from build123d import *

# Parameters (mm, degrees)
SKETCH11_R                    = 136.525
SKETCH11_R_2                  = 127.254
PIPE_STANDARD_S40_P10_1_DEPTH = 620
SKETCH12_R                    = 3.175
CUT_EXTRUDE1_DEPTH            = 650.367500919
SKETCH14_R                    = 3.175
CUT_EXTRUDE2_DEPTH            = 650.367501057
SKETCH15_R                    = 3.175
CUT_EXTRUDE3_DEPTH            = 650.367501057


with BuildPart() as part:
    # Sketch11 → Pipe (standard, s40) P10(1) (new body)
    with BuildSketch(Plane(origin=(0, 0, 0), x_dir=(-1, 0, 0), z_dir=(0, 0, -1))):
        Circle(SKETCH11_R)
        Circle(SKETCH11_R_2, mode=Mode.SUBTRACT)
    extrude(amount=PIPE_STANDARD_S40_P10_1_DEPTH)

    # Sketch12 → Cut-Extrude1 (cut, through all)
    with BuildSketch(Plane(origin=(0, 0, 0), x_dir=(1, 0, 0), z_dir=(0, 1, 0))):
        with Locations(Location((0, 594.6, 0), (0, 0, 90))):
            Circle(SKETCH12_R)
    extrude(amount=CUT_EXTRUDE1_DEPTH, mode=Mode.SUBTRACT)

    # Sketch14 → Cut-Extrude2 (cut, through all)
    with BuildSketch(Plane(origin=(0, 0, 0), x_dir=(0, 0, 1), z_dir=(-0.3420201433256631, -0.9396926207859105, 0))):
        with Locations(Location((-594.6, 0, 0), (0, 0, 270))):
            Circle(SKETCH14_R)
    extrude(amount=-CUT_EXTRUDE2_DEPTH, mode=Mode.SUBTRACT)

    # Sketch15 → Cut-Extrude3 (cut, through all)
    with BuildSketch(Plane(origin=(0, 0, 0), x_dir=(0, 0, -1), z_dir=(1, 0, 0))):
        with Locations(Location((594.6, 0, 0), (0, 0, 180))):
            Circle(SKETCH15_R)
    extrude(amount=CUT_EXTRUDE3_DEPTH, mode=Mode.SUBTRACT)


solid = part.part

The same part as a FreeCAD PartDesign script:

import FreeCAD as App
import Part
import Sketcher
Q = App.Units.Quantity

doc = App.newDocument("Part")
body = doc.addObject("PartDesign::Body", "Body")

sketch1 = doc.addObject("Sketcher::SketchObject", "Sketch")
body.addObject(sketch1)
sketch1.AttachmentSupport = (doc.XY_Plane, [""])
sketch1.MapMode = "FlatFace"
sketch1.addGeometry(Part.Circle(App.Vector(0, 0, 0), App.Vector(0, 0, 1), 137), False)
sketch1.addGeometry(Part.Circle(App.Vector(0, 0, 0), App.Vector(0, 0, 1), 127), False)
sketch1.addConstraint(Sketcher.Constraint("Coincident", 0, 3, -1, 1))
sketch1.addConstraint(Sketcher.Constraint("Coincident", 1, 3, -1, 1))
sketch1.addConstraint(Sketcher.Constraint("Diameter", 0, Q("10.75 in")))
sketch1.addConstraint(Sketcher.Constraint("Diameter", 1, Q("10.02 in")))
pad1 = doc.addObject("PartDesign::Pad", "Pad")
body.addObject(pad1)
pad1.Profile = sketch1
pad1.Length = 620
pad1.Reversed = True

sketch2 = doc.addObject("Sketcher::SketchObject", "Sketch001")
body.addObject(sketch2)
sketch2.AttachmentSupport = (doc.XZ_Plane, [""])
sketch2.MapMode = "FlatFace"
sketch2.addGeometry(Part.Circle(App.Vector(0, -594.6, 0), App.Vector(0, 0, 1), 3.2), False)
sketch2.addConstraint(Sketcher.Constraint("PointOnObject", 0, 3, -2))
sketch2.addConstraint(Sketcher.Constraint("Diameter", 0, Q("0.25 in")))
sketch2.addConstraint(Sketcher.Constraint("DistanceY", 0, 3, -1, 1, Q("594.6 mm")))
pocket1 = doc.addObject("PartDesign::Pocket", "Pocket")
body.addObject(pocket1)
pocket1.Profile = sketch2
pocket1.Type = "ThroughAll"

sketch3 = doc.addObject("Sketcher::SketchObject", "Sketch002")
body.addObject(sketch3)
sketch3.Placement = App.Placement(App.Vector(0, 0, 0), App.Rotation(App.Vector(0, 0, 1), App.Vector(-0.939692621, 0.342020143, 0), App.Vector(-0.342020143, -0.939692621, 0), "ZXY"))
sketch3.addGeometry(Part.Circle(App.Vector(-594.6, 0, 0), App.Vector(0, 0, 1), 3.2), False)
sketch3.addConstraint(Sketcher.Constraint("PointOnObject", 0, 3, -1))
sketch3.addConstraint(Sketcher.Constraint("Diameter", 0, Q("0.25 in")))
sketch3.addConstraint(Sketcher.Constraint("DistanceX", 0, 3, -1, 1, Q("594.6 mm")))
pocket2 = doc.addObject("PartDesign::Pocket", "Pocket001")
body.addObject(pocket2)
pocket2.Profile = sketch3
pocket2.Type = "ThroughAll"

sketch4 = doc.addObject("Sketcher::SketchObject", "Sketch003")
body.addObject(sketch4)
sketch4.AttachmentSupport = (doc.YZ_Plane, [""])
sketch4.MapMode = "FlatFace"
sketch4.addGeometry(Part.Circle(App.Vector(0, -594.6, 0), App.Vector(0, 0, 1), 3.2), False)
sketch4.addConstraint(Sketcher.Constraint("PointOnObject", 0, 3, -2))
sketch4.addConstraint(Sketcher.Constraint("Diameter", 0, Q("0.25 in")))
sketch4.addConstraint(Sketcher.Constraint("DistanceY", 0, 3, -1, 1, Q("594.6 mm")))
pocket3 = doc.addObject("PartDesign::Pocket", "Pocket002")
body.addObject(pocket3)
pocket3.Profile = sketch4
pocket3.Type = "ThroughAll"
pocket3.Reversed = True

doc.recompute()
